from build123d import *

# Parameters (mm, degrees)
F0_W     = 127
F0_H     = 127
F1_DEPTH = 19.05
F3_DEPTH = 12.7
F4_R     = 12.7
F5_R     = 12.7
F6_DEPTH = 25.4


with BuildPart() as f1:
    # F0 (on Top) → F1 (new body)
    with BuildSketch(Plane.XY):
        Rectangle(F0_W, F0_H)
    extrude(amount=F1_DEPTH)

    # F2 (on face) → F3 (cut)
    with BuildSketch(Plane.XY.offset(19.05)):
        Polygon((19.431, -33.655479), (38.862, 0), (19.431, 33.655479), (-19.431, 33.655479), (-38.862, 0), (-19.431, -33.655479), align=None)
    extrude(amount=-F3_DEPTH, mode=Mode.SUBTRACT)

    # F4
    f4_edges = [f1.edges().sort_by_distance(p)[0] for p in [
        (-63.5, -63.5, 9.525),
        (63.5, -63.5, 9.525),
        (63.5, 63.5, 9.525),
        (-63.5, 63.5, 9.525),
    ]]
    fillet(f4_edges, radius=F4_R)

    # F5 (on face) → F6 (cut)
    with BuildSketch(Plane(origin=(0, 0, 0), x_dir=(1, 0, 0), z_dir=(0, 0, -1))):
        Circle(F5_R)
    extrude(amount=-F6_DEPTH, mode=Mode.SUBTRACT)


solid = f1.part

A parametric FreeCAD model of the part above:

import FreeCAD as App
import Part
import Sketcher
Q = App.Units.Quantity


def edges_at(feature, points):
    """Names of the edges that pass closest to the given points."""
    edges = feature.Shape.Edges
    near = lambda p: min(range(len(edges)), key=lambda i: edges[i].distToShape(Part.Vertex(*p))[0])
    return sorted({f"Edge{near(p) + 1}" for p in points})


def add_polygon(sketch, points):
    """Adds a closed chain of lines whose ends are joined by coincident constraints."""
    first, n = sketch.GeometryCount, len(points)
    for a, b in zip(points, points[1:] + points[:1]):
        sketch.addGeometry(Part.LineSegment(App.Vector(*a, 0), App.Vector(*b, 0)), False)
    for i in range(n):
        sketch.addConstraint(Sketcher.Constraint("Coincident", first + i, 2, first + (i + 1) % n, 1))

doc = App.newDocument("Part")
body = doc.addObject("PartDesign::Body", "Body")

# Sketch on XY plane
sketch1 = doc.addObject("Sketcher::SketchObject", "Sketch")
body.addObject(sketch1)
sketch1.AttachmentSupport = (doc.XY_Plane, [""])
sketch1.MapMode = "FlatFace"
add_polygon(sketch1, [(-64, 64), (-64, -64), (64, -64), (64, 64)])  # lines 0-3
sketch1.addConstraint(Sketcher.Constraint("Vertical", 0))
sketch1.addConstraint(Sketcher.Constraint("Horizontal", 1))
sketch1.addConstraint(Sketcher.Constraint("Vertical", 2))
sketch1.addConstraint(Sketcher.Constraint("Horizontal", 3))
sketch1.addConstraint(Sketcher.Constraint("Symmetric", 0, 2, 2, 2, -1, 1))
sketch1.addConstraint(Sketcher.Constraint("Equal", 3, 0))
sketch1.addConstraint(Sketcher.Constraint("DistanceX", 1, 1, 1, 2, Q("5 in")))
pad1 = doc.addObject("PartDesign::Pad", "Pad")
body.addObject(pad1)
pad1.Profile = sketch1
pad1.Length = Q("0.75 in")

# Sketch on XY plane
sketch2 = doc.addObject("Sketcher::SketchObject", "Sketch001")
body.addObject(sketch2)
sketch2.AttachmentSupport = (doc.XY_Plane, [""])
sketch2.MapMode = "FlatFace"
sketch2.AttachmentOffset = App.Placement(App.Vector(0, 0, 0.75 * 25.4), App.Rotation())
add_polygon(sketch2, [(19, -34), (39, 0), (19, 34), (-19, 34), (-39, 0), (-19, -34)])  # lines 0-5
sketch2.addConstraint(Sketcher.Constraint("Horizontal", 2))
sketch2.addConstraint(Sketcher.Constraint("Horizontal", 5))
sketch2.addConstraint(Sketcher.Constraint("Symmetric", 0, 2, 3, 2, -1, 1))
sketch2.addConstraint(Sketcher.Constraint("Symmetric", 1, 2, 4, 2, -1, 1))
sketch2.addConstraint(Sketcher.Constraint("PointOnObject", 0, 2, -1))
sketch2.addConstraint(Sketcher.Constraint("Parallel", 0, 3))
sketch2.addConstraint(Sketcher.Constraint("Vertical", 2, 2, 4, 2))
sketch2.addConstraint(Sketcher.Constraint("Angle", 0, Q("60 deg")))
sketch2.addConstraint(Sketcher.Constraint("DistanceX", 2, 2, 2, 1, Q("1.53 in")))
sketch2.addConstraint(Sketcher.Constraint("Distance", 0, Q("1.53 in")))
pocket1 = doc.addObject("PartDesign::Pocket", "Pocket")
body.addObject(pocket1)
pocket1.Profile = sketch2
pocket1.Length = Q("0.5 in")
doc.recompute()

fillet = doc.addObject("PartDesign::Fillet", "Fillet")
body.addObject(fillet)
fillet.Base = (pocket1, edges_at(pocket1, [
    (-63.5, -63.5, 9.525),
    (63.5, -63.5, 9.525),
    (63.5, 63.5, 9.525),
    (-63.5, 63.5, 9.525),
]))
fillet.Radius = Q("0.5 in")

# Sketch on XY plane
sketch3 = doc.addObject("Sketcher::SketchObject", "Sketch002")
body.addObject(sketch3)
sketch3.AttachmentSupport = (doc.XY_Plane, [""])
sketch3.MapMode = "FlatFace"
sketch3.addGeometry(Part.Circle(App.Vector(0, 0, 0), App.Vector(0, 0, 1), 13), False)
sketch3.addConstraint(Sketcher.Constraint("Coincident", 0, 3, -1, 1))
sketch3.addConstraint(Sketcher.Constraint("Diameter", 0, Q("1 in")))
pocket2 = doc.addObject("PartDesign::Pocket", "Pocket001")
body.addObject(pocket2)
pocket2.Profile = sketch3
pocket2.Length = Q("1 in")
pocket2.Reversed = True

doc.recompute()
